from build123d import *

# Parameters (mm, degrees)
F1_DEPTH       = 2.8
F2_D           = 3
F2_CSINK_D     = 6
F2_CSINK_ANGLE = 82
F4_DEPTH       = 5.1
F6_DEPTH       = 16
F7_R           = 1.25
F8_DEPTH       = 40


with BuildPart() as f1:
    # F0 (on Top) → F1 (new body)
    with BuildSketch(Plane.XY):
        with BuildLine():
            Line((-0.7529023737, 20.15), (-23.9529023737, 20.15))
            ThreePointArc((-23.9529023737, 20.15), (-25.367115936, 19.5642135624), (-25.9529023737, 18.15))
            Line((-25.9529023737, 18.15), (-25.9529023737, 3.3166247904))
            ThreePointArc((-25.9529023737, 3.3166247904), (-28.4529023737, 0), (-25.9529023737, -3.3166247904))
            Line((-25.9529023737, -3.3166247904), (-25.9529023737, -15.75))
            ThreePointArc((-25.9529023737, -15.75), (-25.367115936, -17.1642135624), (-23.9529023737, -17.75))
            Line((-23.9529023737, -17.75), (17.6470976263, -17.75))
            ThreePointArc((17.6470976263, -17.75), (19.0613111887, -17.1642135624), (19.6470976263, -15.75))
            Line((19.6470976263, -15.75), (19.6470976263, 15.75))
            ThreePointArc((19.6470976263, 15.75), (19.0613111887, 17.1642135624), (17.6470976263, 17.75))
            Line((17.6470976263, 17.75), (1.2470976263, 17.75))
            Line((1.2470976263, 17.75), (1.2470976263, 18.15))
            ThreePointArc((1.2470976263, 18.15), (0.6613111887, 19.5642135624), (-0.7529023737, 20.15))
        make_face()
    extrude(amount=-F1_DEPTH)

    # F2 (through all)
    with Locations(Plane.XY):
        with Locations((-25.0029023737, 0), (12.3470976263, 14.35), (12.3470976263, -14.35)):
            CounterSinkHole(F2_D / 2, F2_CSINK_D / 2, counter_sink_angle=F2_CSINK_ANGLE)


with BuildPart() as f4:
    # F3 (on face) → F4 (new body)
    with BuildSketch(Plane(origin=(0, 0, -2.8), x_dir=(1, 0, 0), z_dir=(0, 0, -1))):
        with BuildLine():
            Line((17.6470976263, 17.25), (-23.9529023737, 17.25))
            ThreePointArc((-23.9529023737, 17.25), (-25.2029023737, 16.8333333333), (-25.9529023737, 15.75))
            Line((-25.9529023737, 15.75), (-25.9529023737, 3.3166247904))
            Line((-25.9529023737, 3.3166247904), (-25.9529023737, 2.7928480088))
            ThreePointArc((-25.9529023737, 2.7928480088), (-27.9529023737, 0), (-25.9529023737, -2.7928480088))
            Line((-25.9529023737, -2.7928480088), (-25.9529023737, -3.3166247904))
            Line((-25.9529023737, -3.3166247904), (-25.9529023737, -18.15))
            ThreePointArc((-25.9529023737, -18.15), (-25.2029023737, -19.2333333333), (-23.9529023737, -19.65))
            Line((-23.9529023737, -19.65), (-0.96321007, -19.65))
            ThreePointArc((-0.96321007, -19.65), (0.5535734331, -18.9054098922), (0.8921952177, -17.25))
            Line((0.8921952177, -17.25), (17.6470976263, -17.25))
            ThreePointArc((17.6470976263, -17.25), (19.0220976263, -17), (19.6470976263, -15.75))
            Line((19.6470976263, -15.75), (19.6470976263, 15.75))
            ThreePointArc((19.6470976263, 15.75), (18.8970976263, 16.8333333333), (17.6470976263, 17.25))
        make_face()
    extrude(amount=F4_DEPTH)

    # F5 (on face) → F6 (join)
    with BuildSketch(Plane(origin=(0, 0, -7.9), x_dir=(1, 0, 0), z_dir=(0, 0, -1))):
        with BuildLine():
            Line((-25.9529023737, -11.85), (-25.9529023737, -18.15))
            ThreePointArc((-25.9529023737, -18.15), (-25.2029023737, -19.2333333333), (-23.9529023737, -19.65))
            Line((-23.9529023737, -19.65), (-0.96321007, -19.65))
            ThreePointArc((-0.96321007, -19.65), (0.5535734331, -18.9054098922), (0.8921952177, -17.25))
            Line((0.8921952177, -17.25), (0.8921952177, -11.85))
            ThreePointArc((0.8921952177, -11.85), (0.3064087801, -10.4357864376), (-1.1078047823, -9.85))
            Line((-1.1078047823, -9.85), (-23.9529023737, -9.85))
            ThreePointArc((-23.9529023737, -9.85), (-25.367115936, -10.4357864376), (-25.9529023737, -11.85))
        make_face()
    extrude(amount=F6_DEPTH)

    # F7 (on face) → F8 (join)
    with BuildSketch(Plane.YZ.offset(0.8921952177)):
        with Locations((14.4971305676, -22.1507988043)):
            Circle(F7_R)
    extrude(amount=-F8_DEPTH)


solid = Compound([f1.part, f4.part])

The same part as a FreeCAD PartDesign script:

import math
import FreeCAD as App
import Part
import Sketcher
from FreeCAD import Vector
Q = App.Units.Quantity

doc = App.newDocument("Part")
body = doc.addObject("PartDesign::Body", "Body")

sketch1 = body.newObject("Sketcher::SketchObject", "Sketch")
sketch1.AttachmentSupport = (doc.getObject("XY_Plane"), [""])
sketch1.MapMode = "FlatFace"
sketch1.addGeometry([
    Part.LineSegment(Vector(-0.75, 20.15, 0), Vector(-23.95, 20.15, 0)),
    Part.ArcOfCircle(Part.Circle(Vector(-23.95, 18.15, 0), Vector(0, 0, 1), 2), math.radians(90), math.radians(180)),
    Part.LineSegment(Vector(-25.95, 18.15, 0), Vector(-25.95, 3.32, 0)),
    Part.ArcOfCircle(Part.Circle(Vector(-25, 0, 0), Vector(0, 0, 1), 3.45), math.radians(106), math.radians(254)),
    Part.LineSegment(Vector(-25.95, -3.32, 0), Vector(-25.95, -15.75, 0)),
    Part.ArcOfCircle(Part.Circle(Vector(-23.95, -15.75, 0), Vector(0, 0, 1), 2), math.radians(180), math.radians(270)),
    Part.LineSegment(Vector(-23.95, -17.75, 0), Vector(17.65, -17.75, 0)),
    Part.ArcOfCircle(Part.Circle(Vector(17.65, -15.75, 0), Vector(0, 0, 1), 2), math.radians(-90), math.radians(0)),
    Part.LineSegment(Vector(19.65, -15.75, 0), Vector(19.65, 15.75, 0)),
    Part.ArcOfCircle(Part.Circle(Vector(17.65, 15.75, 0), Vector(0, 0, 1), 2), math.radians(0), math.radians(90)),
    Part.LineSegment(Vector(17.65, 17.75, 0), Vector(1.25, 17.75, 0)),
    Part.LineSegment(Vector(1.25, 17.75, 0), Vector(1.25, 18.15, 0)),
    Part.ArcOfCircle(Part.Circle(Vector(-0.75, 18.15, 0), Vector(0, 0, 1), 2), math.radians(0), math.radians(90)),
], False)
sketch1.addConstraint([
    Sketcher.Constraint("Tangent", 0, 2, 1, 1),
    Sketcher.Constraint("Tangent", 1, 2, 2, 1),
    Sketcher.Constraint("Coincident", 2, 2, 3, 1),
    Sketcher.Constraint("Coincident", 3, 2, 4, 1),
    Sketcher.Constraint("Tangent", 4, 2, 5, 1),
    Sketcher.Constraint("Tangent", 5, 2, 6, 1),
    Sketcher.Constraint("Tangent", 6, 2, 7, 1),
    Sketcher.Constraint("Tangent", 7, 2, 8, 1),
    Sketcher.Constraint("Tangent", 8, 2, 9, 1),
    Sketcher.Constraint("Tangent", 9, 2, 10, 1),
    Sketcher.Constraint("Coincident", 10, 2, 11, 1),
    Sketcher.Constraint("Tangent", 11, 2, 12, 1),
    Sketcher.Constraint("Tangent", 12, 2, 0, 1),
    Sketcher.Constraint("Horizontal", 0),
    Sketcher.Constraint("Vertical", 2),
    Sketcher.Constraint("Vertical", 4),
    Sketcher.Constraint("Horizontal", 6),
    Sketcher.Constraint("Vertical", 8),
    Sketcher.Constraint("Horizontal", 10),
    Sketcher.Constraint("Vertical", 11),
    Sketcher.Constraint("Equal", 1, 5),
    Sketcher.Constraint("Equal", 5, 7),
    Sketcher.Constraint("Equal", 7, 9),
    Sketcher.Constraint("Equal", 9, 12),
    Sketcher.Constraint("Symmetric", 2, 2, 3, 2, -1),
    Sketcher.Constraint("Radius", 1, Q("2 mm")),
    Sketcher.Constraint("Radius", 3, Q("3.45 mm")),
    Sketcher.Constraint("DistanceX", 0, 2, 0, 1, Q("23.2 mm")),
    Sketcher.Constraint("DistanceX", 6, 1, 6, 2, Q("41.6 mm")),
    Sketcher.Constraint("DistanceY", 8, 1, 8, 2, Q("31.5 mm")),
    Sketcher.Constraint("DistanceY", 11, 1, 11, 2, Q("0.4 mm")),
    Sketcher.Constraint("DistanceY", -1, 1, 1, 3, Q("18.15 mm")),
    Sketcher.Constraint("DistanceX", 3, 3, 1, 3, Q("1.05 mm")),
    Sketcher.Constraint("DistanceX", 1, 3, -1, 1, Q("23.952902 mm")),
])
pad1 = body.newObject("PartDesign::Pad", "Pad")
pad1.Profile = sketch1
pad1.Length = 2.8
pad1.Reversed = True

sketch2 = body.newObject("Sketcher::SketchObject", "Sketch001")
sketch2.AttachmentSupport = (doc.getObject("XY_Plane"), [""])
sketch2.MapMode = "FlatFace"
sketch2.addGeometry([
    Part.Circle(Vector(-25, 0, 0), Vector(0, 0, 1), 1.5),
    Part.Circle(Vector(12.3, 14.3, 0), Vector(0, 0, 1), 1.5),
    Part.Circle(Vector(12.3, -14.3, 0), Vector(0, 0, 1), 1.5),
], False)
sketch2.addConstraint([
    Sketcher.Constraint("Equal", 0, 1),
    Sketcher.Constraint("Equal", 1, 2),
    Sketcher.Constraint("Symmetric", 1, 3, 2, 3, -1),
    Sketcher.Constraint("PointOnObject", 0, 3, -1),
    Sketcher.Constraint("Diameter", 0, Q("3 mm")),
    Sketcher.Constraint("DistanceY", 2, 3, 1, 3, Q("28.7 mm")),
    Sketcher.Constraint("DistanceX", 0, 3, 1, 3, Q("37.35 mm")),
    Sketcher.Constraint("DistanceX", 0, 3, -1, 1, Q("25.002902 mm")),
])
doc.recompute()
hole = body.newObject("PartDesign::Hole", "Hole")
hole.Profile = sketch2
hole.ThreadType = "None"
hole.Diameter = 3
hole.DepthType = "ThroughAll"
hole.HoleCutType = "Countersink"
hole.HoleCutDiameter = 6
hole.HoleCutCountersinkAngle = 82
body2 = doc.addObject("PartDesign::Body", "Body001")

sketch3 = body2.newObject("Sketcher::SketchObject", "Sketch002")
sketch3.AttachmentSupport = (doc.getObject("XY_Plane001"), [""])
sketch3.MapMode = "FlatFace"
sketch3.AttachmentOffset = App.Placement(Vector(0, 0, -2.8), App.Rotation())
sketch3.addGeometry([
    Part.LineSegment(Vector(17.6, -17.2, 0), Vector(-24, -17.2, 0)),
    Part.ArcOfCircle(Part.Circle(Vector(-24, -15.2, 0), Vector(0, 0, 1), 2.1), math.radians(-164), math.radians(-90)),
    Part.LineSegment(Vector(-26, -15.8, 0), Vector(-26, -2.8, 0)),
    Part.ArcOfCircle(Part.Circle(Vector(-25, 0, 0), Vector(0, 0, 1), 3), math.radians(109), math.radians(251)),
    Part.LineSegment(Vector(-26, 2.8, 0), Vector(-26, 18.1, 0)),
    Part.ArcOfCircle(Part.Circle(Vector(-24, 17.6, 0), Vector(0, 0, 1), 2.1), math.radians(90), math.radians(164)),
    Part.LineSegment(Vector(-24, 19.6, 0), Vector(-1, 19.6, 0)),
    Part.ArcOfCircle(Part.Circle(Vector(-1, 17.7, 0), Vector(0, 0, 1), 1.9), math.radians(-15), math.radians(90)),
    Part.LineSegment(Vector(0.9, 17.2, 0), Vector(17.6, 17.2, 0)),
    Part.ArcOfCircle(Part.Circle(Vector(18.1, 15.8, 0), Vector(0, 0, 1), 1.6), math.radians(0), math.radians(106)),
    Part.LineSegment(Vector(19.6, 15.8, 0), Vector(19.6, -15.8, 0)),
    Part.ArcOfCircle(Part.Circle(Vector(17.6, -15.2, 0), Vector(0, 0, 1), 2.1), math.radians(-90), math.radians(-16)),
], False)
sketch3.addConstraint([
    Sketcher.Constraint("Tangent", 0, 2, 1, 2),
    Sketcher.Constraint("Coincident", 1, 1, 2, 1),
    Sketcher.Constraint("Coincident", 2, 2, 3, 2),
    Sketcher.Constraint("Coincident", 3, 1, 4, 1),
    Sketcher.Constraint("Coincident", 4, 2, 5, 2),
    Sketcher.Constraint("Tangent", 5, 1, 6, 1),
    Sketcher.Constraint("Tangent", 6, 2, 7, 2),
    Sketcher.Constraint("Coincident", 7, 1, 8, 1),
    Sketcher.Constraint("Coincident", 8, 2, 9, 2),
    Sketcher.Constraint("Tangent", 9, 1, 10, 1),
    Sketcher.Constraint("Coincident", 10, 2, 11, 2),
    Sketcher.Constraint("Tangent", 11, 1, 0, 1),
    Sketcher.Constraint("Horizontal", 0),
    Sketcher.Constraint("Vertical", 2),
    Sketcher.Constraint("Vertical", 4),
    Sketcher.Constraint("Horizontal", 6),
    Sketcher.Constraint("Horizontal", 8),
    Sketcher.Constraint("Vertical", 10),
    Sketcher.Constraint("Equal", 1, 5),
    Sketcher.Constraint("Equal", 5, 11),
    Sketcher.Constraint("Symmetric", 2, 2, 3, 1, -1),
    Sketcher.Constraint("Symmetric", 8, 2, 11, 1, -1),
    Sketcher.Constraint("Horizontal", 1, 1, 10, 2),
    Sketcher.Constraint("Vertical", 1, 3, 5, 3),
    Sketcher.Constraint("Radius", 3, Q("2.95 mm")),
    Sketcher.Constraint("DistanceX", 0, 2, 0, 1, Q("41.6 mm")),
    Sketcher.Constraint("DistanceY", 10, 2, 10, 1, Q("31.5 mm")),
    Sketcher.Constraint("DistanceX", 1, 1, 1, 3, Q("2 mm")),
    Sketcher.Constraint("DistanceY", 10, 2, 8, 2, Q("33 mm")),
    Sketcher.Constraint("DistanceY", 11, 1, 9, 3, Q("33 mm")),
    Sketcher.Constraint("DistanceY", 9, 3, 6, 2, Q("3.9 mm")),
    Sketcher.Constraint("DistanceX", 3, 3, 1, 3, Q("1.05 mm")),
    Sketcher.Constraint("Radius", 7, Q("1.917193 mm")),
    Sketcher.Constraint("DistanceX", 6, 1, 6, 2, Q("22.989692 mm")),
    Sketcher.Constraint("DistanceX", 7, 3, -1, 1, Q("0.96321 mm")),
])
pad2 = body2.newObject("PartDesign::Pad", "Pad001")
pad2.Profile = sketch3
pad2.Length = 5.1
pad2.Reversed = True

sketch4 = body2.newObject("Sketcher::SketchObject", "Sketch003")
sketch4.AttachmentSupport = (doc.getObject("XY_Plane001"), [""])
sketch4.MapMode = "FlatFace"
sketch4.AttachmentOffset = App.Placement(Vector(0, 0, -7.9), App.Rotation())
sketch4.addGeometry([
    Part.LineSegment(Vector(-26, 11.8, 0), Vector(-26, 18.1, 0)),
    Part.ArcOfCircle(Part.Circle(Vector(-24, 17.6, 0), Vector(0, 0, 1), 2.1), math.radians(90), math.radians(164)),
    Part.LineSegment(Vector(-24, 19.6, 0), Vector(-1, 19.6, 0)),
    Part.ArcOfCircle(Part.Circle(Vector(-1, 17.7, 0), Vector(0, 0, 1), 1.9), math.radians(-15), math.radians(90)),
    Part.LineSegment(Vector(0.9, 17.2, 0), Vector(0.9, 11.8, 0)),
    Part.ArcOfCircle(Part.Circle(Vector(-1.1, 11.8, 0), Vector(0, 0, 1), 2), math.radians(-90), math.radians(0)),
    Part.LineSegment(Vector(-1.1, 9.8, 0), Vector(-24, 9.8, 0)),
    Part.ArcOfCircle(Part.Circle(Vector(-24, 11.8, 0), Vector(0, 0, 1), 2), math.radians(180), math.radians(270)),
], False)
sketch4.addConstraint([
    Sketcher.Constraint("Coincident", 0, 2, 1, 2),
    Sketcher.Constraint("Tangent", 1, 1, 2, 1),
    Sketcher.Constraint("Tangent", 2, 2, 3, 2),
    Sketcher.Constraint("Coincident", 3, 1, 4, 1),
    Sketcher.Constraint("Tangent", 4, 2, 5, 2),
    Sketcher.Constraint("Tangent", 5, 1, 6, 1),
    Sketcher.Constraint("Tangent", 6, 2, 7, 2),
    Sketcher.Constraint("Tangent", 7, 1, 0, 1),
    Sketcher.Constraint("Vertical", 0),
    Sketcher.Constraint("Horizontal", 2),
    Sketcher.Constraint("Vertical", 4),
    Sketcher.Constraint("Horizontal", 6),
    Sketcher.Constraint("Equal", 5, 7),
    Sketcher.Constraint("Vertical", 1, 3, 7, 3),
    Sketcher.Constraint("Radius", 5, Q("2 mm")),
    Sketcher.Constraint("DistanceY", 0, 1, 0, 2, Q("6.3 mm")),
    Sketcher.Constraint("DistanceY", 4, 2, 4, 1, Q("5.4 mm")),
    Sketcher.Constraint("DistanceY", 0, 2, 1, 1, Q("1.5 mm")),
    Sketcher.Constraint("DistanceY", -1, 1, 5, 3, Q("11.85 mm")),
    Sketcher.Constraint("Radius", 3, Q("1.917193 mm")),
    Sketcher.Constraint("DistanceX", 2, 1, 2, 2, Q("22.989692 mm")),
    Sketcher.Constraint("DistanceX", 3, 3, -1, 1, Q("0.96321 mm")),
])
pad3 = body2.newObject("PartDesign::Pad", "Pad002")
pad3.Profile = sketch4
pad3.Length = 16
pad3.Reversed = True

sketch5 = body2.newObject("Sketcher::SketchObject", "Sketch004")
sketch5.AttachmentSupport = (doc.getObject("YZ_Plane001"), [""])
sketch5.MapMode = "FlatFace"
sketch5.AttachmentOffset = App.Placement(Vector(0, 0, 0.892195), App.Rotation())
sketch5.addGeometry(Part.Circle(Vector(14.5, -22.2, 0), Vector(0, 0, 1), 1.2), False)
sketch5.addConstraint([
    Sketcher.Constraint("Diameter", 0, Q("2.5 mm")),
    Sketcher.Constraint("DistanceY", 0, 3, -1, 1, Q("22.150799 mm")),
    Sketcher.Constraint("DistanceX", -1, 1, 0, 3, Q("14.497131 mm")),
])
pad4 = body2.newObject("PartDesign::Pad", "Pad003")
pad4.Profile = sketch5
pad4.Length = 40
pad4.Reversed = True

doc.recompute()
